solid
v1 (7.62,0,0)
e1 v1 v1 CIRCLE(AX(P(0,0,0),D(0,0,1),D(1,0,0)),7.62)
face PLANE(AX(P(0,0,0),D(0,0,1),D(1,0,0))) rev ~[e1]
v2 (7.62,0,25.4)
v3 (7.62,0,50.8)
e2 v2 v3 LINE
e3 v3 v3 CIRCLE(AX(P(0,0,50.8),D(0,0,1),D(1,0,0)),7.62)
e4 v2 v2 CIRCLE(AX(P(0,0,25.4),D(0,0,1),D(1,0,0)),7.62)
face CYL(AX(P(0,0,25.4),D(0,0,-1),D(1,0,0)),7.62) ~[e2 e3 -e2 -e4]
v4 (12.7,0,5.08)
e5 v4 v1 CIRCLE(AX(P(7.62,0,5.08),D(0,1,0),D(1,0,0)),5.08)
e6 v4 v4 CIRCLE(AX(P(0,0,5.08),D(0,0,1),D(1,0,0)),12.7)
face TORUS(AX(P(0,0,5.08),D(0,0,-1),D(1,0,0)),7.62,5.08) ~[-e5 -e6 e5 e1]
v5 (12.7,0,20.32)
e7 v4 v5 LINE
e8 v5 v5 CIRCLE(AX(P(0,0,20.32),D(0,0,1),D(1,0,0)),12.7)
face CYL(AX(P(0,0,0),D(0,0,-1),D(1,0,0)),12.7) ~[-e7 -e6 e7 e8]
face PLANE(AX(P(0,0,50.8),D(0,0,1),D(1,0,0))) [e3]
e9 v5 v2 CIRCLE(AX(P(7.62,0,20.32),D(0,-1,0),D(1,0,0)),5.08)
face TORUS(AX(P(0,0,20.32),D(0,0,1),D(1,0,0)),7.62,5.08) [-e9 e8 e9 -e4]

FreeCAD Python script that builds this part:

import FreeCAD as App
import Part
import Sketcher
from FreeCAD import Vector
Q = App.Units.Quantity


def edges_at(feature, points):
    """Names of the edges that pass closest to the given points."""
    edges = feature.Shape.Edges
    near = lambda p: min(range(len(edges)), key=lambda i: edges[i].distToShape(Part.Vertex(*p))[0])
    return sorted({f"Edge{near(p) + 1}" for p in points})

doc = App.newDocument("Part")
body = doc.addObject("PartDesign::Body", "Body")

sketch1 = doc.addObject("Sketcher::SketchObject", "Sketch")
body.addObject(sketch1)
sketch1.AttachmentSupport = (doc.XY_Plane, [""])
sketch1.MapMode = "FlatFace"
sketch1.addGeometry(Part.Circle(Vector(0, 0, 0), Vector(0, 0, 1), 13), False)
sketch1.addConstraint(Sketcher.Constraint("Coincident", 0, 3, -1, 1))
sketch1.addConstraint(Sketcher.Constraint("Diameter", 0, Q("1 in")))
pad1 = doc.addObject("PartDesign::Pad", "Pad")
body.addObject(pad1)
pad1.Profile = sketch1
pad1.Length = Q("1 in")
doc.recompute()

fillet = doc.addObject("PartDesign::Fillet", "Fillet")
body.addObject(fillet)
fillet.Base = (pad1, edges_at(pad1, [(-12.7, 0, 25.4), (-12.7, 0, 0)]))
fillet.Radius = Q("0.2 in")

sketch2 = doc.addObject("Sketcher::SketchObject", "Sketch001")
body.addObject(sketch2)
sketch2.AttachmentSupport = (doc.XY_Plane, [""])
sketch2.MapMode = "FlatFace"
sketch2.AttachmentOffset = App.Placement(Vector(0, 0, 1 * 25.4), App.Rotation())
sketch2.addGeometry(Part.Circle(Vector(0, 0, 0), Vector(0, 0, 1), 8), False)
sketch2.addConstraint(Sketcher.Constraint("Coincident", 0, 3, -1, 1))
sketch2.addConstraint(Sketcher.Constraint("Diameter", 0, Q("0.6 in")))
pad2 = doc.addObject("PartDesign::Pad", "Pad001")
body.addObject(pad2)
pad2.Profile = sketch2
pad2.Length = Q("1 in")

doc.recompute()
